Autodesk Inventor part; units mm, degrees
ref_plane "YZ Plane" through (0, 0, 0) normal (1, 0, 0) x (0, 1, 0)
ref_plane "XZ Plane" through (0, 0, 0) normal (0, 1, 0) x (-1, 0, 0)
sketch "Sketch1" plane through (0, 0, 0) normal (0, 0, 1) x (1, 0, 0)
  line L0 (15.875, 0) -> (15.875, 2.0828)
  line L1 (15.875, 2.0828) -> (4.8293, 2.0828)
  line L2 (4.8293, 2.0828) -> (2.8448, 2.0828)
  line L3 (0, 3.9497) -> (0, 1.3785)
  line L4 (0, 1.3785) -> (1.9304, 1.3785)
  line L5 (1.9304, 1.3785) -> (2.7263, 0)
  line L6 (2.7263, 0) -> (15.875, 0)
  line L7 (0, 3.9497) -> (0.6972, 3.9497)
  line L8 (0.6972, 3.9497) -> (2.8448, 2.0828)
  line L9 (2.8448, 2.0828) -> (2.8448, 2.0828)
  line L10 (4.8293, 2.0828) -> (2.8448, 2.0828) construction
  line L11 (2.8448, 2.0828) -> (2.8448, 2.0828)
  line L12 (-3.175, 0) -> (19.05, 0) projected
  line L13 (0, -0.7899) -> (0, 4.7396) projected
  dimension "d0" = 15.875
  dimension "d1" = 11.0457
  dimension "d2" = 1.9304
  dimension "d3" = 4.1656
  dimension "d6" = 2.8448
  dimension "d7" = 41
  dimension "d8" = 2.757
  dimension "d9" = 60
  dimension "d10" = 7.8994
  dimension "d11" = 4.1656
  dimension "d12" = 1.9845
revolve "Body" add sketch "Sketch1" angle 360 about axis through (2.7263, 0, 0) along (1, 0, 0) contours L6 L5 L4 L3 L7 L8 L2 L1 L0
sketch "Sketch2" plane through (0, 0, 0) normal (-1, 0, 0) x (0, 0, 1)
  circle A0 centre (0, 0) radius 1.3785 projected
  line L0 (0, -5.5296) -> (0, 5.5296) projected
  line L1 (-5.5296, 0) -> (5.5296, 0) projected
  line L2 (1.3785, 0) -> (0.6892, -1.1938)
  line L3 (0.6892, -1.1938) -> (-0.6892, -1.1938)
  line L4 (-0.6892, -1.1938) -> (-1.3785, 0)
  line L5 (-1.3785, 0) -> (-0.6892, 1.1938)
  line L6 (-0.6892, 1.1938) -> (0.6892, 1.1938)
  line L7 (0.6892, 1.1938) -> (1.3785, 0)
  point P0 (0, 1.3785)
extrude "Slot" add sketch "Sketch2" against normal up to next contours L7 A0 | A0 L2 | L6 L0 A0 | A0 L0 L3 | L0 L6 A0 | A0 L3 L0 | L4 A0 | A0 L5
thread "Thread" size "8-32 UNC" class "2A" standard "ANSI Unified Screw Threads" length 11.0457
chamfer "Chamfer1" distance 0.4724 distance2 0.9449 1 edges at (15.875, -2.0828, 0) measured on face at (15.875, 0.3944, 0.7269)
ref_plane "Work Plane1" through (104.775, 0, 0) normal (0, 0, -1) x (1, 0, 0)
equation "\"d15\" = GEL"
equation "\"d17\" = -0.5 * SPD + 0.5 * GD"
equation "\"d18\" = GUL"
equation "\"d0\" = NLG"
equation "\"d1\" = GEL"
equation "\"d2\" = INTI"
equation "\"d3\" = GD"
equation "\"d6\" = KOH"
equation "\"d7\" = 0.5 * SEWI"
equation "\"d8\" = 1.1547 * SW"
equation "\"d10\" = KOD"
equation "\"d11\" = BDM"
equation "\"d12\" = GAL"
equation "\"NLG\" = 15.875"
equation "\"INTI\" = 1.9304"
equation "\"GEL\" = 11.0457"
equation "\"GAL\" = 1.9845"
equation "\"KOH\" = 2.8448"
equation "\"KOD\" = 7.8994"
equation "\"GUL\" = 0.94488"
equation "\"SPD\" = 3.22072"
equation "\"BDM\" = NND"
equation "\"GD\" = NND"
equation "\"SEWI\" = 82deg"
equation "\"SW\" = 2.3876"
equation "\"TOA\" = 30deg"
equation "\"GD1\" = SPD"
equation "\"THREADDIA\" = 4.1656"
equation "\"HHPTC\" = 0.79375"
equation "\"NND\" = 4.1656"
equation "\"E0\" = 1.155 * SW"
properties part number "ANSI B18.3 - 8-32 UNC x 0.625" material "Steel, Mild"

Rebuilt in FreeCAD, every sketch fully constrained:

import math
import FreeCAD as App
import Part
import Sketcher
Q = App.Units.Quantity


def edges_at(feature, points):
    """Names of the edges that pass closest to the given points."""
    edges = feature.Shape.Edges
    near = lambda p: min(range(len(edges)), key=lambda i: edges[i].distToShape(Part.Vertex(*p))[0])
    return sorted({f"Edge{near(p) + 1}" for p in points})


def add_polygon(sketch, points):
    """Adds a closed chain of lines whose ends are joined by coincident constraints."""
    first, n = sketch.GeometryCount, len(points)
    for a, b in zip(points, points[1:] + points[:1]):
        sketch.addGeometry(Part.LineSegment(App.Vector(*a, 0), App.Vector(*b, 0)), False)
    for i in range(n):
        sketch.addConstraint(Sketcher.Constraint("Coincident", first + i, 2, first + (i + 1) % n, 1))

doc = App.newDocument("Part")
body = doc.addObject("PartDesign::Body", "Body")

sketch1 = doc.addObject("Sketcher::SketchObject", "Sketch")
body.addObject(sketch1)
sketch1.AttachmentSupport = (doc.XY_Plane, [""])
sketch1.MapMode = "FlatFace"
add_polygon(sketch1, [(2.7, 0), (15.9, 0), (15.9, 2.1), (2.8, 2.1), (0.7, 3.9), (0, 3.9), (0, 1.4), (1.9, 1.4)])
sketch1.addConstraint(Sketcher.Constraint("Horizontal", 0))
sketch1.addConstraint(Sketcher.Constraint("Vertical", 1))
sketch1.addConstraint(Sketcher.Constraint("Horizontal", 2))
sketch1.addConstraint(Sketcher.Constraint("Horizontal", 4))
sketch1.addConstraint(Sketcher.Constraint("Vertical", 5))
sketch1.addConstraint(Sketcher.Constraint("Horizontal", 6))
sketch1.addConstraint(Sketcher.Constraint("PointOnObject", 0, 2, -1))
sketch1.addConstraint(Sketcher.Constraint("PointOnObject", 4, 2, -2))
sketch1.addConstraint(Sketcher.Constraint("DistanceX", 6, 1, 6, 2, Q("0.076 in")))
sketch1.addConstraint(Sketcher.Constraint("DistanceX", -1, 1, 0, 2, Q("0.625 in")))
sketch1.addConstraint(Sketcher.Constraint("DistanceX", -1, 1, 2, 2, Q("0.112 in")))
sketch1.addConstraint(Sketcher.Constraint("Angle", 3, Q("138.9997 deg")))
sketch1.addConstraint(Sketcher.Constraint("Angle", 7, Q("-59.9993 deg")))
sketch1.addConstraint(Sketcher.Constraint("DistanceY", 1, 1, 1, 2, Q("0.082 in")))
sketch1.addConstraint(Sketcher.Constraint("DistanceX", 0, 1, 0, 2, Q("13.1487 mm")))
sketch1.addConstraint(Sketcher.Constraint("DistanceX", 4, 2, 4, 1, Q("0.6972 mm")))
revolution = doc.addObject("PartDesign::Revolution", "Revolution")
body.addObject(revolution)
revolution.Profile = sketch1
revolution.ReferenceAxis = (sketch1, ["H_Axis"])
revolution.Angle = 360

sketch2 = doc.addObject("Sketcher::SketchObject", "Sketch001")
body.addObject(sketch2)
sketch2.AttachmentSupport = (doc.YZ_Plane, [""])
sketch2.MapMode = "FlatFace"
sketch2.addGeometry(Part.LineSegment(App.Vector(1.2, 0.7, 0), App.Vector(0, 1.4, 0)), False)
sketch2.addGeometry(Part.ArcOfCircle(Part.Circle(App.Vector(0, 0, 0), App.Vector(0, 0, 1), 1.4), math.radians(30), math.radians(90)), False)
sketch2.addGeometry(Part.ArcOfCircle(Part.Circle(App.Vector(0, 0, 0), App.Vector(0, 0, 1), 1.4), math.radians(90), math.radians(150)), False)
sketch2.addGeometry(Part.LineSegment(App.Vector(0, 1.4, 0), App.Vector(-1.2, 0.7, 0)), False)
sketch2.addGeometry(Part.ArcOfCircle(Part.Circle(App.Vector(0, 0, 0), App.Vector(0, 0, 1), 1.4), math.radians(-30), math.radians(30)), False)
sketch2.addGeometry(Part.LineSegment(App.Vector(1.2, 0.7, 0), App.Vector(1.2, -0.7, 0)), False)
sketch2.addGeometry(Part.LineSegment(App.Vector(-1.2, 0.7, 0), App.Vector(-1.2, -0.7, 0)), False)
sketch2.addGeometry(Part.ArcOfCircle(Part.Circle(App.Vector(0, 0, 0), App.Vector(0, 0, 1), 1.4), math.radians(150), math.radians(210)), False)
sketch2.addGeometry(Part.LineSegment(App.Vector(-1.2, -0.7, 0), App.Vector(0, -1.4, 0)), False)
sketch2.addGeometry(Part.ArcOfCircle(Part.Circle(App.Vector(0, 0, 0), App.Vector(0, 0, 1), 1.4), math.radians(-150), math.radians(-90)), False)
sketch2.addGeometry(Part.ArcOfCircle(Part.Circle(App.Vector(0, 0, 0), App.Vector(0, 0, 1), 1.4), math.radians(-90), math.radians(-30)), False)
sketch2.addGeometry(Part.LineSegment(App.Vector(0, -1.4, 0), App.Vector(1.2, -0.7, 0)), False)
sketch2.addConstraint(Sketcher.Constraint("Coincident", 0, 1, 1, 1))
sketch2.addConstraint(Sketcher.Constraint("Coincident", 1, 2, 0, 2))
sketch2.addConstraint(Sketcher.Constraint("Coincident", 2, 1, 3, 1))
sketch2.addConstraint(Sketcher.Constraint("Coincident", 3, 2, 2, 2))
sketch2.addConstraint(Sketcher.Constraint("Coincident", 4, 1, 5, 2))
sketch2.addConstraint(Sketcher.Constraint("Coincident", 5, 1, 4, 2))
sketch2.addConstraint(Sketcher.Constraint("Coincident", 6, 1, 7, 1))
sketch2.addConstraint(Sketcher.Constraint("Coincident", 7, 2, 6, 2))
sketch2.addConstraint(Sketcher.Constraint("Coincident", 8, 1, 9, 1))
sketch2.addConstraint(Sketcher.Constraint("Coincident", 9, 2, 8, 2))
sketch2.addConstraint(Sketcher.Constraint("Coincident", 10, 1, 11, 1))
sketch2.addConstraint(Sketcher.Constraint("Coincident", 11, 2, 10, 2))
sketch2.addConstraint(Sketcher.Constraint("Vertical", 5))
sketch2.addConstraint(Sketcher.Constraint("Vertical", 6))
sketch2.addConstraint(Sketcher.Constraint("Coincident", 1, 3, -1, 1))
sketch2.addConstraint(Sketcher.Constraint("Coincident", 2, 3, -1, 1))
sketch2.addConstraint(Sketcher.Constraint("Coincident", 4, 3, -1, 1))
sketch2.addConstraint(Sketcher.Constraint("Coincident", 7, 3, -1, 1))
sketch2.addConstraint(Sketcher.Constraint("Coincident", 9, 3, -1, 1))
sketch2.addConstraint(Sketcher.Constraint("Coincident", 10, 3, -1, 1))
sketch2.addConstraint(Sketcher.Constraint("Coincident", 2, 1, 1, 2))
sketch2.addConstraint(Sketcher.Constraint("Coincident", 5, 1, 0, 1))
sketch2.addConstraint(Sketcher.Constraint("Coincident", 6, 1, 3, 2))
sketch2.addConstraint(Sketcher.Constraint("Coincident", 8, 1, 7, 2))
sketch2.addConstraint(Sketcher.Constraint("Coincident", 10, 1, 9, 2))
sketch2.addConstraint(Sketcher.Constraint("PointOnObject", 1, 2, -2))
sketch2.addConstraint(Sketcher.Constraint("PointOnObject", 9, 2, -2))
sketch2.addConstraint(Sketcher.Constraint("Parallel", 0, 8))
sketch2.addConstraint(Sketcher.Constraint("Parallel", 3, 11))
sketch2.addConstraint(Sketcher.Constraint("Radius", 1, Q("1.3785 mm")))
sketch2.addConstraint(Sketcher.Constraint("DistanceX", -1, 1, 0, 1, Q("0.047 in")))
pad1 = doc.addObject("PartDesign::Pad", "Pad")
body.addObject(pad1)
pad1.Profile = sketch2
pad1.Type = "UpToFirst"
doc.recompute()

chamfer = doc.addObject("PartDesign::Chamfer", "Chamfer")
body.addObject(chamfer)
chamfer.Base = (pad1, edges_at(pad1, [(15.875, -2.083, 0)]))
chamfer.ChamferType = "Two distances"
chamfer.Size = Q("0.0185984 in")
chamfer.Size2 = Q("0.0372008 in")

doc.recompute()
